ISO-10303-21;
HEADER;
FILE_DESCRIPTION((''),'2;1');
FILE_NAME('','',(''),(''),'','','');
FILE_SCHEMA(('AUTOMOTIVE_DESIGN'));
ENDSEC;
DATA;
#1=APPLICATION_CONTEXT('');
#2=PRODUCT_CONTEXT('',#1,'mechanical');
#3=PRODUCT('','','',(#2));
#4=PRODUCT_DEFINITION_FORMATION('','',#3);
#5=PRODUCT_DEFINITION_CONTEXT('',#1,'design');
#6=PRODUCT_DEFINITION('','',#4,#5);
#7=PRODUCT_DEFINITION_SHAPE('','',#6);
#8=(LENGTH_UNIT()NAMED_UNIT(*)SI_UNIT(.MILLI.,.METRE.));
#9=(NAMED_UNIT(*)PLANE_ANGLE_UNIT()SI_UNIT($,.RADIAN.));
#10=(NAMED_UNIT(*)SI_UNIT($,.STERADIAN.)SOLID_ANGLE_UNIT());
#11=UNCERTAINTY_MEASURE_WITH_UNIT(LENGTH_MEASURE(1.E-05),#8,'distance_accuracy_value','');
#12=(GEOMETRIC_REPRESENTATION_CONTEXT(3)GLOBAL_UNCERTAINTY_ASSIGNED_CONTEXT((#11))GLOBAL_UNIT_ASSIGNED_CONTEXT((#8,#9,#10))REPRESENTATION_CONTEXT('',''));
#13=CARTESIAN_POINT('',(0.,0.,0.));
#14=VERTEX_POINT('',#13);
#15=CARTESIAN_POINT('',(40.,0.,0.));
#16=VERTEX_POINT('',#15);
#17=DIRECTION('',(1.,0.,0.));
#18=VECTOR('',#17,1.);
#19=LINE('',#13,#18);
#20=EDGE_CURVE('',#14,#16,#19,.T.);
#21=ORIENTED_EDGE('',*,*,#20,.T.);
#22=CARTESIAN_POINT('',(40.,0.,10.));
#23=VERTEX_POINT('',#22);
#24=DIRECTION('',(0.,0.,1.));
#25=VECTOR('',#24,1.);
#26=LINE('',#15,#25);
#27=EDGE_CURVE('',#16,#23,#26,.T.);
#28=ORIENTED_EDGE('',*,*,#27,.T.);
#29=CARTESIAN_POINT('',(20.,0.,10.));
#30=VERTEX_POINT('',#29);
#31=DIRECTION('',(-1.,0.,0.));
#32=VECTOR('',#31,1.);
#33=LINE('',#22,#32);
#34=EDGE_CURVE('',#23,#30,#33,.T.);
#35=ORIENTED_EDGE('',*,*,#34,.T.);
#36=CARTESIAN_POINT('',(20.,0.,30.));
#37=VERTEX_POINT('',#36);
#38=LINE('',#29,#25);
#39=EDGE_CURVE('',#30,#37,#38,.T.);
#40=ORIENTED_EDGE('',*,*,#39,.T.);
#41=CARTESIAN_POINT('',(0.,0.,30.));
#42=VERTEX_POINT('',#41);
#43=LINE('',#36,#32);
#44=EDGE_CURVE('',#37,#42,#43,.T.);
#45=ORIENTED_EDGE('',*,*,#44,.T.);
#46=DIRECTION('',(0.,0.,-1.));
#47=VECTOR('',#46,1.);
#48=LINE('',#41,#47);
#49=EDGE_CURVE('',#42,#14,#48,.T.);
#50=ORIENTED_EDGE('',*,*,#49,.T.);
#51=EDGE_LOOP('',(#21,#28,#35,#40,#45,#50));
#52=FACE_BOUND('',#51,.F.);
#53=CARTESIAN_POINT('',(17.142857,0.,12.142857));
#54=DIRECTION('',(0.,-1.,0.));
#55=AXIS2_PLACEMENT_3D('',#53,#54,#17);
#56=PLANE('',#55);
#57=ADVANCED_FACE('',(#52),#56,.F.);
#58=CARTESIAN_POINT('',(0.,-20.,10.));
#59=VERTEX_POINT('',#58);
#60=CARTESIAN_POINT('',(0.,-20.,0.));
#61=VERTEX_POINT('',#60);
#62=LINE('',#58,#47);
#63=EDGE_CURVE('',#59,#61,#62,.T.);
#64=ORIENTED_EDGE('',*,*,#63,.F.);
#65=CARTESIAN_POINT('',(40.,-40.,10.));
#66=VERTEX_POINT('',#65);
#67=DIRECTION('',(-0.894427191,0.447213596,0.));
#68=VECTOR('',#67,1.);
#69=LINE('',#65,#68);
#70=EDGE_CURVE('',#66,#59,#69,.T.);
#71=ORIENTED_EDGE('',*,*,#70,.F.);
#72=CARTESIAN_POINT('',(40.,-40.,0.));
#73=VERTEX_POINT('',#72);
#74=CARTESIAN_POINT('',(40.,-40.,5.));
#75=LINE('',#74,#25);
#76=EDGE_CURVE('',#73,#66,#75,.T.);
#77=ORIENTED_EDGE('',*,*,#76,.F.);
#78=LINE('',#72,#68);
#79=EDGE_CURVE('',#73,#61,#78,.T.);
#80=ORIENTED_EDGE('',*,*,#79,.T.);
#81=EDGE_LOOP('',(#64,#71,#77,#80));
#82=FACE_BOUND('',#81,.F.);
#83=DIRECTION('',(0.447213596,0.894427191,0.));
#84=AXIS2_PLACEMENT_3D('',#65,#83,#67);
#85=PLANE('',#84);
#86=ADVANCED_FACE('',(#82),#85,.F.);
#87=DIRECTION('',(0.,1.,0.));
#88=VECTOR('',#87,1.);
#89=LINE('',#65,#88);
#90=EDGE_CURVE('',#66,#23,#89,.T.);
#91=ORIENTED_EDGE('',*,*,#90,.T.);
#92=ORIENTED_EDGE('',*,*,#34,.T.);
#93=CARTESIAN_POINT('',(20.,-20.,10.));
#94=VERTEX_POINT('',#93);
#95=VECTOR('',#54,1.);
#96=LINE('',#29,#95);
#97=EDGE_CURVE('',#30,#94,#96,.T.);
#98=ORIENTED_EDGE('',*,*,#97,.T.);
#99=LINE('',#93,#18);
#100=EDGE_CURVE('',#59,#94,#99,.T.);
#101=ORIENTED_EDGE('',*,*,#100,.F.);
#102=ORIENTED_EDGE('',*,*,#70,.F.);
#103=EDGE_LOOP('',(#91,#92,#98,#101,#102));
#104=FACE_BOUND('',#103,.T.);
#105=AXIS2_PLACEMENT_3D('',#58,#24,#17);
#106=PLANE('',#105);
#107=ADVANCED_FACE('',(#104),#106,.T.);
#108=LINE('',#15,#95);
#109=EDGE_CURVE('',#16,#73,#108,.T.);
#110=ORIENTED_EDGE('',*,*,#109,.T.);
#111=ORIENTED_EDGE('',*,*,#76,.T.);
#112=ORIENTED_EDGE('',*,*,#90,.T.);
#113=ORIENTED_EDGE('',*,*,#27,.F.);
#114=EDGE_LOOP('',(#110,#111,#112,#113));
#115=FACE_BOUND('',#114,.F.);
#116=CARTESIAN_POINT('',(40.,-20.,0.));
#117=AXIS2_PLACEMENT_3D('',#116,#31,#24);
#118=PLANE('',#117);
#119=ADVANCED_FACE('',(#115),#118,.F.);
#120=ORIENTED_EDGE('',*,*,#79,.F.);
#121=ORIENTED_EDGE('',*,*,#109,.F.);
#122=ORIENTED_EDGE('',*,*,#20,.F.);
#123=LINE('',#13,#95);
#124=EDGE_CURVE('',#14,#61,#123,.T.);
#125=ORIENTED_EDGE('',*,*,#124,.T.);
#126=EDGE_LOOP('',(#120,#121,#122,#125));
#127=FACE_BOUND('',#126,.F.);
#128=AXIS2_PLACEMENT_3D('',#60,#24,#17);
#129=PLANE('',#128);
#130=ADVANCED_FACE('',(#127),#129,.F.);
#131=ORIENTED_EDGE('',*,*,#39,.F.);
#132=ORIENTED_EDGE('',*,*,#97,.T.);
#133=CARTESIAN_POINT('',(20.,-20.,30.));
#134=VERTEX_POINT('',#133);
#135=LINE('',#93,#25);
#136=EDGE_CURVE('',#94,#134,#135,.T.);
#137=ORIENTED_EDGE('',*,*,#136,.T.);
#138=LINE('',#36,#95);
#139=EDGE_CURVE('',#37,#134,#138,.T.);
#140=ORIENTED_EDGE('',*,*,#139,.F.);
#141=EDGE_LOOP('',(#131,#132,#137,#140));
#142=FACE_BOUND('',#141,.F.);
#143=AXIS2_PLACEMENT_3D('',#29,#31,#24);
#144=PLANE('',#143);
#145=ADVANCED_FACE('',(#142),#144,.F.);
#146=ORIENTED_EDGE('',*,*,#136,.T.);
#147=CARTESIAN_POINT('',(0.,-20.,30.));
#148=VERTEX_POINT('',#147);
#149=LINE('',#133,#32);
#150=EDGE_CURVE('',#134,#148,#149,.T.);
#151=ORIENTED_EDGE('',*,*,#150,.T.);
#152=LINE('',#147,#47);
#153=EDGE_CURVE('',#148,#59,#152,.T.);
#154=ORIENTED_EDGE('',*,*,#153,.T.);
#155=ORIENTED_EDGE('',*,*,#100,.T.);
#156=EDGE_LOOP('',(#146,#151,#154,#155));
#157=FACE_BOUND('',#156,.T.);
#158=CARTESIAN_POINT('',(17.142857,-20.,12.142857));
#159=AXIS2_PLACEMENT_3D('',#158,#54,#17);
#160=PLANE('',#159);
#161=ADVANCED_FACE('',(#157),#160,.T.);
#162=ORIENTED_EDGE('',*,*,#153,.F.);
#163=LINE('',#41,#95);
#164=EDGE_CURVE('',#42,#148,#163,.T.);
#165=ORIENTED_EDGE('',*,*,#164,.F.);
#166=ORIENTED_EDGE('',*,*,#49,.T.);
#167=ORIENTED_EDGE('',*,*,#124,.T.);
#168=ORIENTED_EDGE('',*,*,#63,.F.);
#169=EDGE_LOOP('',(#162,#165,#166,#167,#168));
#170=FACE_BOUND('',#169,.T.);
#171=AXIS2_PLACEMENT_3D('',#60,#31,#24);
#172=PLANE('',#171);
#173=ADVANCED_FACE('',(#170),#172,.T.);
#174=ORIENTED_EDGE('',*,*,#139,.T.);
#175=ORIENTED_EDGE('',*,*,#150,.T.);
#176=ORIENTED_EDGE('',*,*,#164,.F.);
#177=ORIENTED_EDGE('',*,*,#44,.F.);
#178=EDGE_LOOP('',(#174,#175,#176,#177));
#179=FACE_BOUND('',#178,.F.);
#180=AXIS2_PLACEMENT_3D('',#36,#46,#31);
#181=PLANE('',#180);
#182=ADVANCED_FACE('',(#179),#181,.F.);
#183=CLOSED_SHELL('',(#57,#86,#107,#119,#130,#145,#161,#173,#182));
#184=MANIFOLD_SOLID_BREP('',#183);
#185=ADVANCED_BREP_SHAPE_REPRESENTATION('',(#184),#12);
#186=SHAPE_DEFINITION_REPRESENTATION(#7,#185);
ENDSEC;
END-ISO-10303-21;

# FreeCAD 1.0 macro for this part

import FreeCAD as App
import Part
import Sketcher
from FreeCAD import Vector
Q = App.Units.Quantity

doc = App.newDocument("Part")
params = doc.addObject("Spreadsheet::Sheet", "Params")
for row, (alias, value) in enumerate([
    ("sketch1_width", "40 mm"),
    ("sketch1_height", "30 mm"),
    ("pad1_length", "20 mm"),
    ("sketch2_width", "40 mm"),
    ("sketch2_height", "10 mm"),
    ("pad2_length", "20 mm"),
    ("sketch3_width", "40 mm"),
    ("sketch3_height", "20 mm"),
    ("pocket1_length", "10 mm"),
], start=1):
    params.set(f"A{row}", alias)
    params.set(f"B{row}", "=" + value)
    params.setAlias(f"B{row}", alias)

body = doc.addObject("PartDesign::Body", "Body")

# Sketch on XZ plane
sketch1 = doc.addObject("Sketcher::SketchObject", "Sketch")
body.addObject(sketch1)
sketch1.AttachmentSupport = (doc.XZ_Plane, [""])
sketch1.MapMode = "FlatFace"
sketch1.addGeometry([
    Part.LineSegment(Vector(0, 30, 0), Vector(0, 0, 0)),  # 0
    Part.LineSegment(Vector(0, 0, 0), Vector(40, 0, 0)),  # 1
    Part.LineSegment(Vector(40, 0, 0), Vector(40, 10, 0)),  # 2
    Part.LineSegment(Vector(40, 10, 0), Vector(20, 10, 0)),  # 3
    Part.LineSegment(Vector(20, 10, 0), Vector(20, 30, 0)),  # 4
    Part.LineSegment(Vector(20, 30, 0), Vector(0, 30, 0)),  # 5
], False)
sketch1.addConstraint([
    Sketcher.Constraint("Coincident", 0, 2, 1, 1),
    Sketcher.Constraint("Coincident", 1, 2, 2, 1),
    Sketcher.Constraint("Coincident", 2, 2, 3, 1),
    Sketcher.Constraint("Coincident", 3, 2, 4, 1),
    Sketcher.Constraint("Coincident", 4, 2, 5, 1),
    Sketcher.Constraint("Coincident", 5, 2, 0, 1),
    Sketcher.Constraint("Vertical", 0),
    Sketcher.Constraint("Horizontal", 1),
    Sketcher.Constraint("Vertical", 2),
    Sketcher.Constraint("Horizontal", 3),
    Sketcher.Constraint("Vertical", 4),
    Sketcher.Constraint("Horizontal", 5),
    Sketcher.Constraint("Coincident", 0, 2, -1, 1),
    Sketcher.Constraint("Equal", 3, 5),
    Sketcher.Constraint("Equal", 5, 4),
    Sketcher.Constraint("DistanceX", 1, 1, 1, 2, Q("40 mm")),
    Sketcher.Constraint("DistanceY", 0, 2, 0, 1, Q("30 mm")),
])
sketch1.setExpression("Constraints[15]", "Params.sketch1_width")
sketch1.setExpression("Constraints[16]", "Params.sketch1_height")
pad1 = doc.addObject("PartDesign::Pad", "Pad")
body.addObject(pad1)
pad1.Profile = sketch1
pad1.setExpression("Length", "Params.pad1_length")

# Sketch on XZ plane
sketch2 = doc.addObject("Sketcher::SketchObject", "Sketch001")
body.addObject(sketch2)
sketch2.AttachmentSupport = (doc.XZ_Plane, [""])
sketch2.MapMode = "FlatFace"
sketch2.AttachmentOffset = App.Placement(Vector(0, 0, 20), App.Rotation())
sketch2.addGeometry([
    Part.LineSegment(Vector(0, 10, 0), Vector(0, 0, 0)),
    Part.LineSegment(Vector(0, 0, 0), Vector(40, 0, 0)),
    Part.LineSegment(Vector(40, 0, 0), Vector(40, 10, 0)),
    Part.LineSegment(Vector(40, 10, 0), Vector(0, 10, 0)),
], False)
sketch2.addConstraint([
    Sketcher.Constraint("Coincident", 0, 2, 1, 1),
    Sketcher.Constraint("Coincident", 1, 2, 2, 1),
    Sketcher.Constraint("Coincident", 2, 2, 3, 1),
    Sketcher.Constraint("Coincident", 3, 2, 0, 1),
    Sketcher.Constraint("Vertical", 0),
    Sketcher.Constraint("Horizontal", 1),
    Sketcher.Constraint("Vertical", 2),
    Sketcher.Constraint("Horizontal", 3),
    Sketcher.Constraint("Coincident", 0, 2, -1, 1),
    Sketcher.Constraint("DistanceX", 1, 1, 1, 2, Q("40 mm")),
    Sketcher.Constraint("DistanceY", 0, 2, 0, 1, Q("10 mm")),
])
sketch2.setExpression("Constraints[9]", "Params.sketch2_width")
sketch2.setExpression("Constraints[10]", "Params.sketch2_height")
pad2 = doc.addObject("PartDesign::Pad", "Pad001")
body.addObject(pad2)
pad2.Profile = sketch2
pad2.setExpression("Length", "Params.pad2_length")

# Sketch on XY plane
sketch3 = doc.addObject("Sketcher::SketchObject", "Sketch002")
body.addObject(sketch3)
sketch3.AttachmentSupport = (doc.XY_Plane, [""])
sketch3.MapMode = "FlatFace"
sketch3.AttachmentOffset = App.Placement(Vector(0, 0, 10), App.Rotation())
sketch3.addGeometry([
    Part.LineSegment(Vector(40, -40, 0), Vector(0, -20, 0)),
    Part.LineSegment(Vector(0, -20, 0), Vector(0, -40, 0)),
    Part.LineSegment(Vector(0, -40, 0), Vector(40, -40, 0)),
], False)
sketch3.addConstraint([
    Sketcher.Constraint("Coincident", 0, 2, 1, 1),
    Sketcher.Constraint("Coincident", 1, 2, 2, 1),
    Sketcher.Constraint("Coincident", 2, 2, 0, 1),
    Sketcher.Constraint("Vertical", 1),
    Sketcher.Constraint("Horizontal", 2),
    Sketcher.Constraint("PointOnObject", 0, 2, -2),
    Sketcher.Constraint("DistanceX", 2, 1, 2, 2, Q("40 mm")),
    Sketcher.Constraint("DistanceY", 1, 2, 1, 1, Q("20 mm")),
    Sketcher.Constraint("DistanceY", 0, 2, -1, 1, Q("20 mm")),
])
sketch3.setExpression("Constraints[6]", "Params.sketch3_width")
sketch3.setExpression("Constraints[7]", "Params.sketch3_height")
pocket1 = doc.addObject("PartDesign::Pocket", "Pocket")
body.addObject(pocket1)
pocket1.Profile = sketch3
pocket1.setExpression("Length", "Params.pocket1_length")

doc.recompute()
